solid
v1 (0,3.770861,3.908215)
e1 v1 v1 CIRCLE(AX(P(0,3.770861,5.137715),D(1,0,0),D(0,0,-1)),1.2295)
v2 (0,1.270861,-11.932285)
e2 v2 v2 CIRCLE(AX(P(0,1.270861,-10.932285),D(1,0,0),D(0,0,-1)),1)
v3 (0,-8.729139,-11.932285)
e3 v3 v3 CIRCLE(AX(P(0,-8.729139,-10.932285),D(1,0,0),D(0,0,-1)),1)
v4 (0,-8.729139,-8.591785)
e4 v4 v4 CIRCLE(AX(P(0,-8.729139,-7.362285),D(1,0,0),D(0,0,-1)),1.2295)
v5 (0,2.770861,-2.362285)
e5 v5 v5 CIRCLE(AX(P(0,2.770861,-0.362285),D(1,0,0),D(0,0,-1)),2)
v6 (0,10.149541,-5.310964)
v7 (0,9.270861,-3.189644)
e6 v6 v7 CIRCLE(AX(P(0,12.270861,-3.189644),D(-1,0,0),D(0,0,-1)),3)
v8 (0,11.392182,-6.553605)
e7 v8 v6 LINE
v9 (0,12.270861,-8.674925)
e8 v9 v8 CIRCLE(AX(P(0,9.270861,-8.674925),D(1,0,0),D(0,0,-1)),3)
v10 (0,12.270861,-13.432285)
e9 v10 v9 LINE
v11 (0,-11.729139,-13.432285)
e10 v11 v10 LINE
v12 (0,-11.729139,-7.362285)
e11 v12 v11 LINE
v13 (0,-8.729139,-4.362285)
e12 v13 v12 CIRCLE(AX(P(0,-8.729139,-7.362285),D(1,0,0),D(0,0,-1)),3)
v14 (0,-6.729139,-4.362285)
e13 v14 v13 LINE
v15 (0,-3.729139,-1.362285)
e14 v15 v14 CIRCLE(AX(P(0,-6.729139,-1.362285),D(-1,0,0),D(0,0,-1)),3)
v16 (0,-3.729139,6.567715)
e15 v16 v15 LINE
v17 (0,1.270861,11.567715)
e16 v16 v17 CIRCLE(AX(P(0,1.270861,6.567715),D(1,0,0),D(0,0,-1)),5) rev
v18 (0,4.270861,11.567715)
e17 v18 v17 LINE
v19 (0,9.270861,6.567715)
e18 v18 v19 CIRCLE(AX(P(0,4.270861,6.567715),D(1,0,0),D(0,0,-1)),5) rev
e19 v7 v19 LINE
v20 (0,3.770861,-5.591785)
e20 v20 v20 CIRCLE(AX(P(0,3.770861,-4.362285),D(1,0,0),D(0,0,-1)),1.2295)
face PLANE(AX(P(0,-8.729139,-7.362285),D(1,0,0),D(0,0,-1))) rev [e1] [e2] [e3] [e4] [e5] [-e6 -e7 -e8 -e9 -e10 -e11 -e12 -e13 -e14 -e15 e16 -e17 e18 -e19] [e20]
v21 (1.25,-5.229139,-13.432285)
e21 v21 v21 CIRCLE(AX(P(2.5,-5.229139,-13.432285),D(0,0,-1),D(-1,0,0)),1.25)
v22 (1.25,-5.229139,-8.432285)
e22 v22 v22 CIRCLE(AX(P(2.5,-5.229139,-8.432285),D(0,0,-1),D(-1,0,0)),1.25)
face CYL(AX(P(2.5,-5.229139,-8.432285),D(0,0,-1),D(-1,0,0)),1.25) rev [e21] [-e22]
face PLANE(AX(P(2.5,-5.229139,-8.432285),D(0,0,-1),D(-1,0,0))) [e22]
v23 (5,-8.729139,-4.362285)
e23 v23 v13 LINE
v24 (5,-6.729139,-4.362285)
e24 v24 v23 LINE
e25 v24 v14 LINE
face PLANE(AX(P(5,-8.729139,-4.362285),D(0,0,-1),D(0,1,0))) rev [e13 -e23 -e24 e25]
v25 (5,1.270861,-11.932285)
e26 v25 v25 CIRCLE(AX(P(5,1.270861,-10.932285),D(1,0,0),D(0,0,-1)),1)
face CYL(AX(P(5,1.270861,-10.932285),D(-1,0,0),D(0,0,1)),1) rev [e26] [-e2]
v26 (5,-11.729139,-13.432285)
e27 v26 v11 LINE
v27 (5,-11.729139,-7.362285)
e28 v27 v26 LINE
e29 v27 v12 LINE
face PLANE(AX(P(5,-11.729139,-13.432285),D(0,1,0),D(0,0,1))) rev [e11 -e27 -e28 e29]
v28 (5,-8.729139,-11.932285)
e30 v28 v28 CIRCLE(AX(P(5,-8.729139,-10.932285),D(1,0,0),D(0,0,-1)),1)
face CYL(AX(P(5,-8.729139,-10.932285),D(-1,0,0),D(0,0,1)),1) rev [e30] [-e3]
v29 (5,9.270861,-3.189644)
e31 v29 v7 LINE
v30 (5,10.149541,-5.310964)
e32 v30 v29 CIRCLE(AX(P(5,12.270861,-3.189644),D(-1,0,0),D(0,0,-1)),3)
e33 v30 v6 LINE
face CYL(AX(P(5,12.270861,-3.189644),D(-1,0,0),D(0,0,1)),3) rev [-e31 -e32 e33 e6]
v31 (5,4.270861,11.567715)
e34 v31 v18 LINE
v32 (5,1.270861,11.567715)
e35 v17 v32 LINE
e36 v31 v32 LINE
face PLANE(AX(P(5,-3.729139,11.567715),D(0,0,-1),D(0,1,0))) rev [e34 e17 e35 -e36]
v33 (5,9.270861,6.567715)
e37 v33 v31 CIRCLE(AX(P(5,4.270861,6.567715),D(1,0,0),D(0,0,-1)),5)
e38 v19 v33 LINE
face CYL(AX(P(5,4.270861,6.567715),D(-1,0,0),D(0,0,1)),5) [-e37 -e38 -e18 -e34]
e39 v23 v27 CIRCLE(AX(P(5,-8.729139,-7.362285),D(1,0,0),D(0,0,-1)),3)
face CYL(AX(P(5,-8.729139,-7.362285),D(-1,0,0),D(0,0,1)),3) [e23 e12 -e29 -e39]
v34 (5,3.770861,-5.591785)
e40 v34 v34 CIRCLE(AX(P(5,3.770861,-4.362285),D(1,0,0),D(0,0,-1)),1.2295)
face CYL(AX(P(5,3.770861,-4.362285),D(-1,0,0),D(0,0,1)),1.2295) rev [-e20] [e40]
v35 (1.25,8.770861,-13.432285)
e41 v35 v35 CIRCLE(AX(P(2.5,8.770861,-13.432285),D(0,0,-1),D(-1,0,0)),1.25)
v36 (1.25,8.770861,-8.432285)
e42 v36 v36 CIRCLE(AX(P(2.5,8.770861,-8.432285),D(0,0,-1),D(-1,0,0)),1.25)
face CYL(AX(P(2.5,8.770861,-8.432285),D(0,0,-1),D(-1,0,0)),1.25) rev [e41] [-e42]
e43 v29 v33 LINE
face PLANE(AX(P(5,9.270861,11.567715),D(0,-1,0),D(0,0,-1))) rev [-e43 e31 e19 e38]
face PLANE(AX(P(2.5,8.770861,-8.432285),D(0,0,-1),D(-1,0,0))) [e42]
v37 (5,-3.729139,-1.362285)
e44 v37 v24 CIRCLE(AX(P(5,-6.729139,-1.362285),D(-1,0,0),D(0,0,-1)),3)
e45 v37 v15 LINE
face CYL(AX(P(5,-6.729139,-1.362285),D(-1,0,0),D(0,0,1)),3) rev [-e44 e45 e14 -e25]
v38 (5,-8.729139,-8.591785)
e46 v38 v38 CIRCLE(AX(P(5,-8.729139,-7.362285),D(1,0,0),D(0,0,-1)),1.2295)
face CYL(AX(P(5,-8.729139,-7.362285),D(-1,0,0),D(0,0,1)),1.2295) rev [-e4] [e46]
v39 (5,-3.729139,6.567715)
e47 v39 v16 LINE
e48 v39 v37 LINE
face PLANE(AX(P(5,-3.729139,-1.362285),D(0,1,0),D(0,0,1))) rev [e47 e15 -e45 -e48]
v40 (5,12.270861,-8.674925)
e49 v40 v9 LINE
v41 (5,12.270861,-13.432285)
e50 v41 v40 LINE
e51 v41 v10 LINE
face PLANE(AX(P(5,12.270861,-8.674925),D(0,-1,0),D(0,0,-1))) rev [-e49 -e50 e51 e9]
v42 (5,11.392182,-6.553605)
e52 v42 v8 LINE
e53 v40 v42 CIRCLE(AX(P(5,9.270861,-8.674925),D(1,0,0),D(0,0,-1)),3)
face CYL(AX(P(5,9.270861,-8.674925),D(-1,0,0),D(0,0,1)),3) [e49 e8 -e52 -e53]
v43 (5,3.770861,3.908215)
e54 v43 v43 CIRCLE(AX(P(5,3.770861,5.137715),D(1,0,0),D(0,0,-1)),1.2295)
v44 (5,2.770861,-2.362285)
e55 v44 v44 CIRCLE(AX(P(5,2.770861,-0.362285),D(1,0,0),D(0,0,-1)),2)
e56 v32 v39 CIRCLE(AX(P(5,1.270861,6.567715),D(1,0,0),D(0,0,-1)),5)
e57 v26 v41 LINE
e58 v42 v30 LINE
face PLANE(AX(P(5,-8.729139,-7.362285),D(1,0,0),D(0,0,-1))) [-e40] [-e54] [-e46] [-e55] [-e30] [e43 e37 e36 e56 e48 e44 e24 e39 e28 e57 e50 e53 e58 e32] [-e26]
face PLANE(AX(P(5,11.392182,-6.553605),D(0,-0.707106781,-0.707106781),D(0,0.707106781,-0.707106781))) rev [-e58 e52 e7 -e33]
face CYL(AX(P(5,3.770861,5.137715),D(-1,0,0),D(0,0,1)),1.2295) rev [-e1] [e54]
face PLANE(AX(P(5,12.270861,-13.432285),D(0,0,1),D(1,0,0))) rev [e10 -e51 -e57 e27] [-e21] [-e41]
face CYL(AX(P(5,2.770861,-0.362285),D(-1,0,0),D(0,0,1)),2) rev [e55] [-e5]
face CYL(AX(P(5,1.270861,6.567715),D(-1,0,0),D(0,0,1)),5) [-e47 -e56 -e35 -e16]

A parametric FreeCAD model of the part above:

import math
import FreeCAD as App
import Part
import Sketcher
from FreeCAD import Vector
Q = App.Units.Quantity


def edges_at(feature, points):
    """Names of the edges that pass closest to the given points."""
    edges = feature.Shape.Edges
    near = lambda p: min(range(len(edges)), key=lambda i: edges[i].distToShape(Part.Vertex(*p))[0])
    return sorted({f"Edge{near(p) + 1}" for p in points})

doc = App.newDocument("Part")
params = doc.addObject("Spreadsheet::Sheet", "Params")
for row, (alias, value) in enumerate([
    ("sketch1_diameter", "2 mm"),
    ("sketch1_diameter2", "4 mm"),
    ("sketch1_radius", "3 mm"),
    ("sketch1_width", "24 mm"),
    ("sketch1_width2", "13 mm"),
    ("pad1_length", "5 mm"),
    ("sketch2_diameter", "2.5 mm"),
    ("pocket1_length", "5 mm"),
    ("fillet_radius", "5 mm"),
], start=1):
    params.set(f"A{row}", alias)
    params.set(f"B{row}", "=" + value)
    params.setAlias(f"B{row}", alias)

body = doc.addObject("PartDesign::Body", "Body")

# Sketch on YZ plane
sketch1 = doc.addObject("Sketcher::SketchObject", "Sketch")
body.addObject(sketch1)
sketch1.AttachmentSupport = (doc.YZ_Plane, [""])
sketch1.MapMode = "FlatFace"
sketch1.addGeometry([
    Part.LineSegment(Vector(-11.729139, -7.362285, 0), Vector(-11.729139, -13.432285, 0)),  # 0
    Part.LineSegment(Vector(-11.729139, -13.432285, 0), Vector(12.270861, -13.432285, 0)),  # 1
    Part.LineSegment(Vector(12.270861, -13.432285, 0), Vector(12.270861, -8.674925, 0)),  # 2
    Part.ArcOfCircle(Part.Circle(Vector(9.270861, -8.674925, 0), Vector(0, 0, 1), 3), math.radians(0), math.radians(45)),  # 3
    Part.LineSegment(Vector(11.392182, -6.553605, 0), Vector(10.149541, -5.310964, 0)),  # 4
    Part.ArcOfCircle(Part.Circle(Vector(12.270861, -3.189644, 0), Vector(0, 0, 1), 3), math.radians(180), math.radians(225)),  # 5
    Part.LineSegment(Vector(9.270861, -3.189644, 0), Vector(9.270861, 11.567715, 0)),  # 6
    Part.LineSegment(Vector(9.270861, 11.567715, 0), Vector(-3.729139, 11.567715, 0)),  # 7
    Part.LineSegment(Vector(-3.729139, 11.567715, 0), Vector(-3.729139, -1.362285, 0)),  # 8
    Part.ArcOfCircle(Part.Circle(Vector(-6.729139, -1.362285, 0), Vector(0, 0, 1), 3), math.radians(-90), math.radians(0)),  # 9
    Part.LineSegment(Vector(-6.729139, -4.362285, 0), Vector(-8.729139, -4.362285, 0)),  # 10
    Part.ArcOfCircle(Part.Circle(Vector(-8.729139, -7.362285, 0), Vector(0, 0, 1), 3), math.radians(90), math.radians(180)),  # 11
    Part.Circle(Vector(1.270861, -10.932285, 0), Vector(0, 0, 1), 1),  # 12
    Part.Circle(Vector(3.770861, -4.362285, 0), Vector(0, 0, 1), 1.2295),  # 13
    Part.Circle(Vector(-8.729139, -10.932285, 0), Vector(0, 0, 1), 1),  # 14
    Part.Circle(Vector(-8.729139, -7.362285, 0), Vector(0, 0, 1), 1.2295),  # 15
    Part.Circle(Vector(2.770861, -0.362285, 0), Vector(0, 0, 1), 2),  # 16
    Part.Circle(Vector(3.770861, 5.137715, 0), Vector(0, 0, 1), 1.2295),  # 17
], False)
sketch1.addConstraint([
    Sketcher.Constraint("Coincident", 0, 2, 1, 1),
    Sketcher.Constraint("Coincident", 1, 2, 2, 1),
    Sketcher.Constraint("Tangent", 2, 2, 3, 1),
    Sketcher.Constraint("Tangent", 3, 2, 4, 1),
    Sketcher.Constraint("Tangent", 4, 2, 5, 2),
    Sketcher.Constraint("Tangent", 5, 1, 6, 1),
    Sketcher.Constraint("Coincident", 6, 2, 7, 1),
    Sketcher.Constraint("Coincident", 7, 2, 8, 1),
    Sketcher.Constraint("Tangent", 8, 2, 9, 2),
    Sketcher.Constraint("Tangent", 9, 1, 10, 1),
    Sketcher.Constraint("Tangent", 10, 2, 11, 1),
    Sketcher.Constraint("Tangent", 11, 2, 0, 1),
    Sketcher.Constraint("Vertical", 0),
    Sketcher.Constraint("Horizontal", 1),
    Sketcher.Constraint("Vertical", 2),
    Sketcher.Constraint("Vertical", 6),
    Sketcher.Constraint("Horizontal", 7),
    Sketcher.Constraint("Vertical", 8),
    Sketcher.Constraint("Horizontal", 10),
    Sketcher.Constraint("Coincident", 15, 3, 11, 3),
    Sketcher.Constraint("Equal", 3, 5),
    Sketcher.Constraint("Equal", 5, 9),
    Sketcher.Constraint("Equal", 9, 11),
    Sketcher.Constraint("Equal", 12, 14),
    Sketcher.Constraint("Equal", 13, 15),
    Sketcher.Constraint("Equal", 15, 17),
    Sketcher.Constraint("Horizontal", 12, 3, 14, 3),
    Sketcher.Constraint("Horizontal", 13, 3, 9, 1),
    Sketcher.Constraint("Vertical", 11, 3, 14, 3),
    Sketcher.Constraint("Vertical", 13, 3, 17, 3),
    Sketcher.Constraint("Vertical", 5, 3, 1, 2),
    Sketcher.Constraint("Diameter", 12, Q("2 mm")),
    Sketcher.Constraint("Diameter", 16, Q("4 mm")),
    Sketcher.Constraint("Radius", 3, Q("3 mm")),
    Sketcher.Constraint("DistanceX", 1, 1, 1, 2, Q("24 mm")),
    Sketcher.Constraint("DistanceX", 7, 2, 7, 1, Q("13 mm")),
    Sketcher.Constraint("Angle", 4, Q("135 deg")),
    Sketcher.Constraint("Diameter", 13, Q("2.459 mm")),
    Sketcher.Constraint("DistanceX", 12, 3, 3, 3, Q("8 mm")),
    Sketcher.Constraint("DistanceX", 16, 3, 13, 3, Q("1 mm")),
    Sketcher.Constraint("DistanceY", 13, 3, 16, 3, Q("4 mm")),
    Sketcher.Constraint("DistanceY", 0, 2, 0, 1, Q("6.07 mm")),
    Sketcher.Constraint("DistanceY", 8, 2, 8, 1, Q("12.93 mm")),
    Sketcher.Constraint("DistanceX", 13, 3, 3, 3, Q("5.5 mm")),
    Sketcher.Constraint("DistanceY", 16, 3, 17, 3, Q("5.5 mm")),
    Sketcher.Constraint("DistanceY", 0, 2, 14, 3, Q("2.5 mm")),
    Sketcher.Constraint("DistanceY", 2, 1, 2, 2, Q("4.757359 mm")),
    Sketcher.Constraint("DistanceX", -1, 1, 3, 3, Q("9.270861 mm")),
    Sketcher.Constraint("DistanceY", 3, 3, -1, 1, Q("8.674925 mm")),
])
sketch1.setExpression("Constraints[31]", "Params.sketch1_diameter")
sketch1.setExpression("Constraints[32]", "Params.sketch1_diameter2")
sketch1.setExpression("Constraints[33]", "Params.sketch1_radius")
sketch1.setExpression("Constraints[34]", "Params.sketch1_width")
sketch1.setExpression("Constraints[35]", "Params.sketch1_width2")
pad1 = doc.addObject("PartDesign::Pad", "Pad")
body.addObject(pad1)
pad1.Profile = sketch1
pad1.setExpression("Length", "Params.pad1_length")

# Sketch on XY plane
sketch2 = doc.addObject("Sketcher::SketchObject", "Sketch001")
body.addObject(sketch2)
sketch2.AttachmentSupport = (doc.XY_Plane, [""])
sketch2.MapMode = "FlatFace"
sketch2.AttachmentOffset = App.Placement(Vector(0, 0, -13.432285), App.Rotation())
sketch2.addGeometry([
    Part.Circle(Vector(2.5, 8.770861, 0), Vector(0, 0, 1), 1.25),
    Part.Circle(Vector(2.5, -5.229139, 0), Vector(0, 0, 1), 1.25),
], False)
sketch2.addConstraint([
    Sketcher.Constraint("Equal", 0, 1),
    Sketcher.Constraint("Vertical", 0, 3, 1, 3),
    Sketcher.Constraint("Diameter", 0, Q("2.5 mm")),
    Sketcher.Constraint("DistanceY", 1, 3, 0, 3, Q("14 mm")),
    Sketcher.Constraint("DistanceX", -1, 1, 0, 3, Q("2.5 mm")),
    Sketcher.Constraint("DistanceY", -1, 1, 0, 3, Q("8.770861 mm")),
])
sketch2.setExpression("Constraints[2]", "Params.sketch2_diameter")
pocket1 = doc.addObject("PartDesign::Pocket", "Pocket")
body.addObject(pocket1)
pocket1.Profile = sketch2
pocket1.setExpression("Length", "Params.pocket1_length")
pocket1.Reversed = True
doc.recompute()

fillet = doc.addObject("PartDesign::Fillet", "Fillet")
body.addObject(fillet)
fillet.Base = (pocket1, edges_at(pocket1, [(2.5, -3.729, 11.568), (2.5, 9.271, 11.568)]))
fillet.setExpression("Radius", "Params.fillet_radius")

doc.recompute()
